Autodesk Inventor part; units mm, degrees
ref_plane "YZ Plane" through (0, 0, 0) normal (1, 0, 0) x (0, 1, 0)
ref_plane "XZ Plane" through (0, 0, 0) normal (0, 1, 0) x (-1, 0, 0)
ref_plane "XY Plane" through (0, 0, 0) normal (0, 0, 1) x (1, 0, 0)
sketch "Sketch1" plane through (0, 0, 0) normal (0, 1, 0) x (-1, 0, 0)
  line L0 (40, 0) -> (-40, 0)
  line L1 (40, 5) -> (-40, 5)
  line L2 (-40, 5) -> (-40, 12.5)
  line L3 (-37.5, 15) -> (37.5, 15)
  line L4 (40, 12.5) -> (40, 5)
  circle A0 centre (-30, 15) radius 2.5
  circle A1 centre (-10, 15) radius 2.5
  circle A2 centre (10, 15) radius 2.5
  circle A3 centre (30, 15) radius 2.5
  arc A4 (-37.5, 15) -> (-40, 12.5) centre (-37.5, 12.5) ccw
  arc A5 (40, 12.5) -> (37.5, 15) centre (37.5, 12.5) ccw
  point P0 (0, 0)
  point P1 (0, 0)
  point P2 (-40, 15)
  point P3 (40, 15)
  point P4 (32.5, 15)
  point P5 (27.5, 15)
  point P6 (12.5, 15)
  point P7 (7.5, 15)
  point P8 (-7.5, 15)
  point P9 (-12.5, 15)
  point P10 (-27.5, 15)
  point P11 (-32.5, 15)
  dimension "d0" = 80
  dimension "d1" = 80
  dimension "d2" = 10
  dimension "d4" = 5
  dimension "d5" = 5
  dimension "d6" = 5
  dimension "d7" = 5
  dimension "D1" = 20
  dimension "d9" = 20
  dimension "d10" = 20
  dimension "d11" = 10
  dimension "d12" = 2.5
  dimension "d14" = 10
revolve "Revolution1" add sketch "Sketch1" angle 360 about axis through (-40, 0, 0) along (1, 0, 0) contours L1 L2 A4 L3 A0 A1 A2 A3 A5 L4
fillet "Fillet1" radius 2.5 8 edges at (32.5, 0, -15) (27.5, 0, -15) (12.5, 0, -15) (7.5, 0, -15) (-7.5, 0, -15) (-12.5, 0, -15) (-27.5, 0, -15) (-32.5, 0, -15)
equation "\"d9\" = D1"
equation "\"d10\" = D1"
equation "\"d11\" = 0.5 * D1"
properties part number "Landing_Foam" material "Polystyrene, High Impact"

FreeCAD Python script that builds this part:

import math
import FreeCAD as App
import Part
import Sketcher
Q = App.Units.Quantity


def edges_at(feature, points):
    """Names of the edges that pass closest to the given points."""
    edges = feature.Shape.Edges
    near = lambda p: min(range(len(edges)), key=lambda i: edges[i].distToShape(Part.Vertex(*p))[0])
    return sorted({f"Edge{near(p) + 1}" for p in points})

doc = App.newDocument("Part")
body = doc.addObject("PartDesign::Body", "Body")

# Sketch on XZ plane
sketch1 = body.newObject("Sketcher::SketchObject", "Sketch")
sketch1.AttachmentSupport = (doc.getObject("XZ_Plane"), [""])
sketch1.MapMode = "FlatFace"
sketch1.addGeometry([
    Part.LineSegment(App.Vector(40, 5, 0), App.Vector(-40, 5, 0)),  # 0
    Part.LineSegment(App.Vector(-40, 5, 0), App.Vector(-40, 12.5, 0)),  # 1
    Part.ArcOfCircle(Part.Circle(App.Vector(-37.5, 12.5, 0), App.Vector(0, 0, 1), 2.5), math.radians(90), math.radians(180)),  # 2
    Part.LineSegment(App.Vector(-37.5, 15, 0), App.Vector(-32.5, 15, 0)),  # 3
    Part.ArcOfCircle(Part.Circle(App.Vector(-30, 15, 0), App.Vector(0, 0, 1), 2.5), math.radians(180), math.radians(360)),  # 4
    Part.LineSegment(App.Vector(-27.5, 15, 0), App.Vector(-12.5, 15, 0)),  # 5
    Part.ArcOfCircle(Part.Circle(App.Vector(-10, 15, 0), App.Vector(0, 0, 1), 2.5), math.radians(180), math.radians(360)),  # 6
    Part.LineSegment(App.Vector(-7.5, 15, 0), App.Vector(7.5, 15, 0)),  # 7
    Part.ArcOfCircle(Part.Circle(App.Vector(10, 15, 0), App.Vector(0, 0, 1), 2.5), math.radians(180), math.radians(360)),  # 8
    Part.LineSegment(App.Vector(12.5, 15, 0), App.Vector(27.5, 15, 0)),  # 9
    Part.ArcOfCircle(Part.Circle(App.Vector(30, 15, 0), App.Vector(0, 0, 1), 2.5), math.radians(180), math.radians(360)),  # 10
    Part.LineSegment(App.Vector(32.5, 15, 0), App.Vector(37.5, 15, 0)),  # 11
    Part.ArcOfCircle(Part.Circle(App.Vector(37.5, 12.5, 0), App.Vector(0, 0, 1), 2.5), math.radians(0), math.radians(90)),  # 12
    Part.LineSegment(App.Vector(40, 12.5, 0), App.Vector(40, 5, 0)),  # 13
], False)
sketch1.addConstraint([
    Sketcher.Constraint("Coincident", 0, 2, 1, 1),
    Sketcher.Constraint("Tangent", 1, 2, 2, 2),
    Sketcher.Constraint("Tangent", 2, 1, 3, 1),
    Sketcher.Constraint("Coincident", 3, 2, 4, 1),
    Sketcher.Constraint("Coincident", 4, 2, 5, 1),
    Sketcher.Constraint("Coincident", 5, 2, 6, 1),
    Sketcher.Constraint("Coincident", 6, 2, 7, 1),
    Sketcher.Constraint("Coincident", 7, 2, 8, 1),
    Sketcher.Constraint("Coincident", 8, 2, 9, 1),
    Sketcher.Constraint("Coincident", 9, 2, 10, 1),
    Sketcher.Constraint("Coincident", 10, 2, 11, 1),
    Sketcher.Constraint("Tangent", 11, 2, 12, 2),
    Sketcher.Constraint("Tangent", 12, 1, 13, 1),
    Sketcher.Constraint("Coincident", 13, 2, 0, 1),
    Sketcher.Constraint("Horizontal", 0),
    Sketcher.Constraint("Vertical", 1),
    Sketcher.Constraint("Horizontal", 3),
    Sketcher.Constraint("Horizontal", 5),
    Sketcher.Constraint("Horizontal", 7),
    Sketcher.Constraint("Horizontal", 9),
    Sketcher.Constraint("Horizontal", 11),
    Sketcher.Constraint("Vertical", 13),
    Sketcher.Constraint("Equal", 2, 4),
    Sketcher.Constraint("Equal", 4, 6),
    Sketcher.Constraint("Equal", 6, 8),
    Sketcher.Constraint("Equal", 8, 10),
    Sketcher.Constraint("Equal", 10, 12),
    Sketcher.Constraint("Symmetric", 6, 3, 8, 3, -2),
    Sketcher.Constraint("Symmetric", 4, 3, 10, 3, -2),
    Sketcher.Constraint("Symmetric", 2, 3, 12, 3, -2),
    Sketcher.Constraint("Horizontal", 4, 3, 6, 3),
    Sketcher.Constraint("Horizontal", 10, 3, 2, 1),
    Sketcher.Constraint("Horizontal", 3, 2, 4, 2),
    Sketcher.Constraint("Horizontal", 5, 2, 6, 2),
    Sketcher.Constraint("Horizontal", 7, 2, 8, 2),
    Sketcher.Constraint("Equal", 5, 7),
    Sketcher.Constraint("Radius", 2, Q("2.5 mm")),
    Sketcher.Constraint("DistanceX", 0, 2, 0, 1, Q("80 mm")),
    Sketcher.Constraint("DistanceX", 3, 1, 3, 2, Q("5 mm")),
    Sketcher.Constraint("DistanceY", -1, 1, 0, 2, Q("5 mm")),
    Sketcher.Constraint("DistanceY", 0, 2, 4, 3, Q("10 mm")),
])
revolution = body.newObject("PartDesign::Revolution", "Revolution")
revolution.Profile = sketch1
revolution.ReferenceAxis = (sketch1, ["H_Axis"])
revolution.Angle = 360
doc.recompute()

fillet = body.newObject("PartDesign::Fillet", "Fillet")
fillet.Base = (revolution, edges_at(revolution, [
    (32.5, 0, -15),
    (27.5, 0, -15),
    (12.5, 0, -15),
    (7.5, 0, -15),
    (-7.5, 0, -15),
    (-12.5, 0, -15),
    (-27.5, 0, -15),
    (-32.5, 0, -15),
]))
fillet.Radius = 2.5

doc.recompute()
